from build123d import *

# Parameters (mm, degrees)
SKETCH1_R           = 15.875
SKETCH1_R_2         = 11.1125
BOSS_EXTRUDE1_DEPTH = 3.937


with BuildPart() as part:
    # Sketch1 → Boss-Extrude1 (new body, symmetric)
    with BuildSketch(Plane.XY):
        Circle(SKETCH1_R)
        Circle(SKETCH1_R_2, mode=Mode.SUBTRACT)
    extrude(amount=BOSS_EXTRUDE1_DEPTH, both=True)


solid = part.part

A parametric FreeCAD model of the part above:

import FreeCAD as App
import Part
import Sketcher
from FreeCAD import Vector
Q = App.Units.Quantity

doc = App.newDocument("Part")
body = doc.addObject("PartDesign::Body", "Body")

sketch1 = body.newObject("Sketcher::SketchObject", "Sketch")
sketch1.AttachmentSupport = (doc.getObject("XY_Plane"), [""])
sketch1.MapMode = "FlatFace"
sketch1.addGeometry(Part.Circle(Vector(0, 0, 0), Vector(0, 0, 1), 16), False)
sketch1.addGeometry(Part.Circle(Vector(0, 0, 0), Vector(0, 0, 1), 11), False)
sketch1.addConstraint(Sketcher.Constraint("Coincident", 0, 3, -1, 1))
sketch1.addConstraint(Sketcher.Constraint("Coincident", 1, 3, -1, 1))
sketch1.addConstraint(Sketcher.Constraint("Diameter", 0, Q("1.25 in")))
sketch1.addConstraint(Sketcher.Constraint("Diameter", 1, Q("0.875 in")))
pad1 = body.newObject("PartDesign::Pad", "Pad")
pad1.Profile = sketch1
pad1.Length = Q("0.31 in")
pad1.Midplane = True

doc.recompute()
